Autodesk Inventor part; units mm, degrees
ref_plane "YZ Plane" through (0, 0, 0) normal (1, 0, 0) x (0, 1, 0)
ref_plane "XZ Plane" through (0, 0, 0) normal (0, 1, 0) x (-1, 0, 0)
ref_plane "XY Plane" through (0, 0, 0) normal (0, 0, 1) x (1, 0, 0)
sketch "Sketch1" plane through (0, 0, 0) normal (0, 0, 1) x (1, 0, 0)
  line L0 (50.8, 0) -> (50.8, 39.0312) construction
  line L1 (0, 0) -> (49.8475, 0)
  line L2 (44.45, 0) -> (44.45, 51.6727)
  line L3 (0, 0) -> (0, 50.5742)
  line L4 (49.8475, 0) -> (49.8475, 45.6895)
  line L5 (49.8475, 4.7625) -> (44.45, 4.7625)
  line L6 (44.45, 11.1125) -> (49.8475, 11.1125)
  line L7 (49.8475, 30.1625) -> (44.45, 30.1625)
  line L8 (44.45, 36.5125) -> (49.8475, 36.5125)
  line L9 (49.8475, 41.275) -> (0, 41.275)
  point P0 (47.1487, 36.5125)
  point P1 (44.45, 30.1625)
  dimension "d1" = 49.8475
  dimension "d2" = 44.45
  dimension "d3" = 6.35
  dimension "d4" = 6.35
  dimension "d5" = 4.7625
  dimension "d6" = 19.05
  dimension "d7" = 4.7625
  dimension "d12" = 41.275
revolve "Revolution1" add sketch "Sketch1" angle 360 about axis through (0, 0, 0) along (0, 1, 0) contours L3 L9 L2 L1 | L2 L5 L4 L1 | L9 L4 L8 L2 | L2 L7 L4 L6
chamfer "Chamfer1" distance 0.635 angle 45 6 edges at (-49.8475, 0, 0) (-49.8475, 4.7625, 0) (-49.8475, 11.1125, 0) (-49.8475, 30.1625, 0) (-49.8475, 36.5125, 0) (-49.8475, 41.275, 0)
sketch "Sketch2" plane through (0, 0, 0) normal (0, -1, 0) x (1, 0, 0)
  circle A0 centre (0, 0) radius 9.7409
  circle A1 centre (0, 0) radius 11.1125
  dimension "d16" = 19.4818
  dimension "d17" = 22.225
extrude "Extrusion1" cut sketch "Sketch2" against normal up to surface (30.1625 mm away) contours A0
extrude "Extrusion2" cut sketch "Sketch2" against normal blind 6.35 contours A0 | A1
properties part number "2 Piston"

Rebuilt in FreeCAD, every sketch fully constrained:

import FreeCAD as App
import Part
import Sketcher
Q = App.Units.Quantity


def edges_at(feature, points):
    """Names of the edges that pass closest to the given points."""
    edges = feature.Shape.Edges
    near = lambda p: min(range(len(edges)), key=lambda i: edges[i].distToShape(Part.Vertex(*p))[0])
    return sorted({f"Edge{near(p) + 1}" for p in points})

doc = App.newDocument("Part")
body = doc.addObject("PartDesign::Body", "Body")

# Sketch on XY plane
sketch1 = doc.addObject("Sketcher::SketchObject", "Sketch")
body.addObject(sketch1)
sketch1.AttachmentSupport = (doc.XY_Plane, [""])
sketch1.MapMode = "FlatFace"
sketch1.addGeometry(Part.LineSegment(App.Vector(0, 41.3, 0), App.Vector(0, 0, 0)), False)
sketch1.addGeometry(Part.LineSegment(App.Vector(0, 0, 0), App.Vector(49.8, 0, 0)), False)
sketch1.addGeometry(Part.LineSegment(App.Vector(49.8, 0, 0), App.Vector(49.8, 4.8, 0)), False)
sketch1.addGeometry(Part.LineSegment(App.Vector(49.8, 4.8, 0), App.Vector(44.5, 4.8, 0)), False)
sketch1.addGeometry(Part.LineSegment(App.Vector(44.5, 4.8, 0), App.Vector(44.5, 11.1, 0)), False)
sketch1.addGeometry(Part.LineSegment(App.Vector(44.5, 11.1, 0), App.Vector(49.8, 11.1, 0)), False)
sketch1.addGeometry(Part.LineSegment(App.Vector(49.8, 11.1, 0), App.Vector(49.8, 30.2, 0)), False)
sketch1.addGeometry(Part.LineSegment(App.Vector(49.8, 30.2, 0), App.Vector(44.5, 30.2, 0)), False)
sketch1.addGeometry(Part.LineSegment(App.Vector(44.5, 30.2, 0), App.Vector(44.5, 36.5, 0)), False)
sketch1.addGeometry(Part.LineSegment(App.Vector(44.5, 36.5, 0), App.Vector(49.8, 36.5, 0)), False)
sketch1.addGeometry(Part.LineSegment(App.Vector(49.8, 36.5, 0), App.Vector(49.8, 41.3, 0)), False)
sketch1.addGeometry(Part.LineSegment(App.Vector(49.8, 41.3, 0), App.Vector(0, 41.3, 0)), False)
sketch1.addConstraint(Sketcher.Constraint("Coincident", 0, 2, 1, 1))
sketch1.addConstraint(Sketcher.Constraint("Coincident", 1, 2, 2, 1))
sketch1.addConstraint(Sketcher.Constraint("Coincident", 2, 2, 3, 1))
sketch1.addConstraint(Sketcher.Constraint("Coincident", 3, 2, 4, 1))
sketch1.addConstraint(Sketcher.Constraint("Coincident", 4, 2, 5, 1))
sketch1.addConstraint(Sketcher.Constraint("Coincident", 5, 2, 6, 1))
sketch1.addConstraint(Sketcher.Constraint("Coincident", 6, 2, 7, 1))
sketch1.addConstraint(Sketcher.Constraint("Coincident", 7, 2, 8, 1))
sketch1.addConstraint(Sketcher.Constraint("Coincident", 8, 2, 9, 1))
sketch1.addConstraint(Sketcher.Constraint("Coincident", 9, 2, 10, 1))
sketch1.addConstraint(Sketcher.Constraint("Coincident", 10, 2, 11, 1))
sketch1.addConstraint(Sketcher.Constraint("Coincident", 11, 2, 0, 1))
sketch1.addConstraint(Sketcher.Constraint("Vertical", 0))
sketch1.addConstraint(Sketcher.Constraint("Horizontal", 1))
sketch1.addConstraint(Sketcher.Constraint("Vertical", 2))
sketch1.addConstraint(Sketcher.Constraint("Horizontal", 3))
sketch1.addConstraint(Sketcher.Constraint("Vertical", 4))
sketch1.addConstraint(Sketcher.Constraint("Horizontal", 5))
sketch1.addConstraint(Sketcher.Constraint("Vertical", 6))
sketch1.addConstraint(Sketcher.Constraint("Horizontal", 7))
sketch1.addConstraint(Sketcher.Constraint("Vertical", 8))
sketch1.addConstraint(Sketcher.Constraint("Horizontal", 9))
sketch1.addConstraint(Sketcher.Constraint("Vertical", 10))
sketch1.addConstraint(Sketcher.Constraint("Horizontal", 11))
sketch1.addConstraint(Sketcher.Constraint("Coincident", 0, 2, -1, 1))
sketch1.addConstraint(Sketcher.Constraint("Vertical", 2, 2, 5, 2))
sketch1.addConstraint(Sketcher.Constraint("Vertical", 4, 2, 7, 2))
sketch1.addConstraint(Sketcher.Constraint("Vertical", 6, 2, 9, 2))
sketch1.addConstraint(Sketcher.Constraint("Equal", 4, 8))
sketch1.addConstraint(Sketcher.Constraint("Equal", 2, 10))
sketch1.addConstraint(Sketcher.Constraint("DistanceY", 4, 1, 4, 2, Q("0.25 in")))
sketch1.addConstraint(Sketcher.Constraint("DistanceY", 6, 1, 6, 2, Q("0.75 in")))
sketch1.addConstraint(Sketcher.Constraint("DistanceY", 0, 2, 0, 1, Q("1.625 in")))
sketch1.addConstraint(Sketcher.Constraint("DistanceX", -1, 1, 3, 2, Q("1.75 in")))
sketch1.addConstraint(Sketcher.Constraint("DistanceX", 1, 1, 1, 2, Q("1.9625 in")))
revolution = doc.addObject("PartDesign::Revolution", "Revolution")
body.addObject(revolution)
revolution.Profile = sketch1
revolution.ReferenceAxis = (sketch1, ["V_Axis"])
revolution.Angle = 360
doc.recompute()

chamfer = doc.addObject("PartDesign::Chamfer", "Chamfer")
body.addObject(chamfer)
chamfer.Base = (revolution, edges_at(revolution, [
    (-49.847, 0, 0),
    (-49.847, 4.763, 0),
    (-49.847, 11.113, 0),
    (-49.847, 30.163, 0),
    (-49.847, 36.513, 0),
    (-49.847, 41.275, 0),
]))
chamfer.Size = Q("0.025 in")

# Sketch on XZ plane
sketch2 = doc.addObject("Sketcher::SketchObject", "Sketch001")
body.addObject(sketch2)
sketch2.AttachmentSupport = (doc.XZ_Plane, [""])
sketch2.MapMode = "FlatFace"
sketch2.addGeometry(Part.Circle(App.Vector(0, 0, 0), App.Vector(0, 0, 1), 10), False)
sketch2.addConstraint(Sketcher.Constraint("Coincident", 0, 3, -1, 1))
sketch2.addConstraint(Sketcher.Constraint("Diameter", 0, Q("0.767 in")))
pocket1 = doc.addObject("PartDesign::Pocket", "Pocket")
body.addObject(pocket1)
pocket1.Profile = sketch2
pocket1.Length = Q("1.1875 in")

# Sketch on XZ plane
sketch3 = doc.addObject("Sketcher::SketchObject", "Sketch002")
body.addObject(sketch3)
sketch3.AttachmentSupport = (doc.XZ_Plane, [""])
sketch3.MapMode = "FlatFace"
sketch3.addGeometry(Part.Circle(App.Vector(0, 0, 0), App.Vector(0, 0, 1), 11), False)
sketch3.addConstraint(Sketcher.Constraint("Coincident", 0, 3, -1, 1))
sketch3.addConstraint(Sketcher.Constraint("Diameter", 0, Q("0.875 in")))
pocket2 = doc.addObject("PartDesign::Pocket", "Pocket001")
body.addObject(pocket2)
pocket2.Profile = sketch3
pocket2.Length = Q("0.25 in")

doc.recompute()
